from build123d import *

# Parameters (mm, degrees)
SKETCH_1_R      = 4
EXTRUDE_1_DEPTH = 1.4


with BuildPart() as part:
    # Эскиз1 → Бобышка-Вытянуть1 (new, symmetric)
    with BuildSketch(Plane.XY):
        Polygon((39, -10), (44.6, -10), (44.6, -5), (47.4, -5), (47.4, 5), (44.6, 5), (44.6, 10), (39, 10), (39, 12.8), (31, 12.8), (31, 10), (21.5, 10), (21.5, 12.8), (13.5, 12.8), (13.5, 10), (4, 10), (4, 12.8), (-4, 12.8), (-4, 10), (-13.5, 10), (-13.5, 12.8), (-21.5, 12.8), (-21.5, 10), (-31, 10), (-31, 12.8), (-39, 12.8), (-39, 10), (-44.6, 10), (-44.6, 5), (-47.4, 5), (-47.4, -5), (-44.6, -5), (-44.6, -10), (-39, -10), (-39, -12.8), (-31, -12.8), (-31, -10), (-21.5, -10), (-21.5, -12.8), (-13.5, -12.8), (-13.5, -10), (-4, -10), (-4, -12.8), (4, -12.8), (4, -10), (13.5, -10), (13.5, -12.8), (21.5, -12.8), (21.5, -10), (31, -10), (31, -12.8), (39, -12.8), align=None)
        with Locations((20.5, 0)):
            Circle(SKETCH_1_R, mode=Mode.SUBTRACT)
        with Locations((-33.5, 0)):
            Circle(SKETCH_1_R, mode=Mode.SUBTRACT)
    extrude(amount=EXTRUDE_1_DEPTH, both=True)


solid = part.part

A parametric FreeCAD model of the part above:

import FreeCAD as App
import Part
import Sketcher
from FreeCAD import Vector
Q = App.Units.Quantity

doc = App.newDocument("Part")
params = doc.addObject("Spreadsheet::Sheet", "Params")
for row, (alias, value) in enumerate([
    ("sketch1_diameter", "8 mm"),
    ("sketch1_width", "8 mm"),
    ("sketch1_height", "5 mm"),
    ("sketch1_height2", "10 mm"),
    ("sketch1_width2", "5.6 mm"),
    ("pad1_length", "2.8 mm"),
], start=1):
    params.set(f"A{row}", alias)
    params.set(f"B{row}", "=" + value)
    params.setAlias(f"B{row}", alias)

body = doc.addObject("PartDesign::Body", "Body")

sketch1 = body.newObject("Sketcher::SketchObject", "Sketch")
sketch1.AttachmentSupport = (doc.getObject("XY_Plane"), [""])
sketch1.MapMode = "FlatFace"
sketch1.addGeometry(Part.LineSegment(Vector(39, -10, 0), Vector(44.6, -10, 0)), False)
sketch1.addGeometry(Part.LineSegment(Vector(44.6, -10, 0), Vector(44.6, -5, 0)), False)
sketch1.addGeometry(Part.LineSegment(Vector(44.6, -5, 0), Vector(47.4, -5, 0)), False)
sketch1.addGeometry(Part.LineSegment(Vector(47.4, -5, 0), Vector(47.4, 5, 0)), False)
sketch1.addGeometry(Part.LineSegment(Vector(47.4, 5, 0), Vector(44.6, 5, 0)), False)
sketch1.addGeometry(Part.LineSegment(Vector(44.6, 5, 0), Vector(44.6, 10, 0)), False)
sketch1.addGeometry(Part.LineSegment(Vector(44.6, 10, 0), Vector(39, 10, 0)), False)
sketch1.addGeometry(Part.LineSegment(Vector(39, 10, 0), Vector(39, 12.8, 0)), False)
sketch1.addGeometry(Part.LineSegment(Vector(39, 12.8, 0), Vector(31, 12.8, 0)), False)
sketch1.addGeometry(Part.LineSegment(Vector(31, 12.8, 0), Vector(31, 10, 0)), False)
sketch1.addGeometry(Part.LineSegment(Vector(31, 10, 0), Vector(21.5, 10, 0)), False)
sketch1.addGeometry(Part.LineSegment(Vector(21.5, 10, 0), Vector(21.5, 12.8, 0)), False)
sketch1.addGeometry(Part.LineSegment(Vector(21.5, 12.8, 0), Vector(13.5, 12.8, 0)), False)
sketch1.addGeometry(Part.LineSegment(Vector(13.5, 12.8, 0), Vector(13.5, 10, 0)), False)
sketch1.addGeometry(Part.LineSegment(Vector(13.5, 10, 0), Vector(4, 10, 0)), False)
sketch1.addGeometry(Part.LineSegment(Vector(4, 10, 0), Vector(4, 12.8, 0)), False)
sketch1.addGeometry(Part.LineSegment(Vector(4, 12.8, 0), Vector(-4, 12.8, 0)), False)
sketch1.addGeometry(Part.LineSegment(Vector(-4, 12.8, 0), Vector(-4, 10, 0)), False)
sketch1.addGeometry(Part.LineSegment(Vector(-4, 10, 0), Vector(-13.5, 10, 0)), False)
sketch1.addGeometry(Part.LineSegment(Vector(-13.5, 10, 0), Vector(-13.5, 12.8, 0)), False)
sketch1.addGeometry(Part.LineSegment(Vector(-13.5, 12.8, 0), Vector(-21.5, 12.8, 0)), False)
sketch1.addGeometry(Part.LineSegment(Vector(-21.5, 12.8, 0), Vector(-21.5, 10, 0)), False)
sketch1.addGeometry(Part.LineSegment(Vector(-21.5, 10, 0), Vector(-31, 10, 0)), False)
sketch1.addGeometry(Part.LineSegment(Vector(-31, 10, 0), Vector(-31, 12.8, 0)), False)
sketch1.addGeometry(Part.LineSegment(Vector(-31, 12.8, 0), Vector(-39, 12.8, 0)), False)
sketch1.addGeometry(Part.LineSegment(Vector(-39, 12.8, 0), Vector(-39, 10, 0)), False)
sketch1.addGeometry(Part.LineSegment(Vector(-39, 10, 0), Vector(-44.6, 10, 0)), False)
sketch1.addGeometry(Part.LineSegment(Vector(-44.6, 10, 0), Vector(-44.6, 5, 0)), False)
sketch1.addGeometry(Part.LineSegment(Vector(-44.6, 5, 0), Vector(-47.4, 5, 0)), False)
sketch1.addGeometry(Part.LineSegment(Vector(-47.4, 5, 0), Vector(-47.4, -5, 0)), False)
sketch1.addGeometry(Part.LineSegment(Vector(-47.4, -5, 0), Vector(-44.6, -5, 0)), False)
sketch1.addGeometry(Part.LineSegment(Vector(-44.6, -5, 0), Vector(-44.6, -10, 0)), False)
sketch1.addGeometry(Part.LineSegment(Vector(-44.6, -10, 0), Vector(-39, -10, 0)), False)
sketch1.addGeometry(Part.LineSegment(Vector(-39, -10, 0), Vector(-39, -12.8, 0)), False)
sketch1.addGeometry(Part.LineSegment(Vector(-39, -12.8, 0), Vector(-31, -12.8, 0)), False)
sketch1.addGeometry(Part.LineSegment(Vector(-31, -12.8, 0), Vector(-31, -10, 0)), False)
sketch1.addGeometry(Part.LineSegment(Vector(-31, -10, 0), Vector(-21.5, -10, 0)), False)
sketch1.addGeometry(Part.LineSegment(Vector(-21.5, -10, 0), Vector(-21.5, -12.8, 0)), False)
sketch1.addGeometry(Part.LineSegment(Vector(-21.5, -12.8, 0), Vector(-13.5, -12.8, 0)), False)
sketch1.addGeometry(Part.LineSegment(Vector(-13.5, -12.8, 0), Vector(-13.5, -10, 0)), False)
sketch1.addGeometry(Part.LineSegment(Vector(-13.5, -10, 0), Vector(-4, -10, 0)), False)
sketch1.addGeometry(Part.LineSegment(Vector(-4, -10, 0), Vector(-4, -12.8, 0)), False)
sketch1.addGeometry(Part.LineSegment(Vector(-4, -12.8, 0), Vector(4, -12.8, 0)), False)
sketch1.addGeometry(Part.LineSegment(Vector(4, -12.8, 0), Vector(4, -10, 0)), False)
sketch1.addGeometry(Part.LineSegment(Vector(4, -10, 0), Vector(13.5, -10, 0)), False)
sketch1.addGeometry(Part.LineSegment(Vector(13.5, -10, 0), Vector(13.5, -12.8, 0)), False)
sketch1.addGeometry(Part.LineSegment(Vector(13.5, -12.8, 0), Vector(21.5, -12.8, 0)), False)
sketch1.addGeometry(Part.LineSegment(Vector(21.5, -12.8, 0), Vector(21.5, -10, 0)), False)
sketch1.addGeometry(Part.LineSegment(Vector(21.5, -10, 0), Vector(31, -10, 0)), False)
sketch1.addGeometry(Part.LineSegment(Vector(31, -10, 0), Vector(31, -12.8, 0)), False)
sketch1.addGeometry(Part.LineSegment(Vector(31, -12.8, 0), Vector(39, -12.8, 0)), False)
sketch1.addGeometry(Part.LineSegment(Vector(39, -12.8, 0), Vector(39, -10, 0)), False)
sketch1.addGeometry(Part.Circle(Vector(-33.5, 0, 0), Vector(0, 0, 1), 4), False)
sketch1.addGeometry(Part.Circle(Vector(20.5, 0, 0), Vector(0, 0, 1), 4), False)
sketch1.addConstraint(Sketcher.Constraint("Coincident", 0, 2, 1, 1))
sketch1.addConstraint(Sketcher.Constraint("Coincident", 1, 2, 2, 1))
sketch1.addConstraint(Sketcher.Constraint("Coincident", 2, 2, 3, 1))
sketch1.addConstraint(Sketcher.Constraint("Coincident", 3, 2, 4, 1))
sketch1.addConstraint(Sketcher.Constraint("Coincident", 4, 2, 5, 1))
sketch1.addConstraint(Sketcher.Constraint("Coincident", 5, 2, 6, 1))
sketch1.addConstraint(Sketcher.Constraint("Coincident", 6, 2, 7, 1))
sketch1.addConstraint(Sketcher.Constraint("Coincident", 7, 2, 8, 1))
sketch1.addConstraint(Sketcher.Constraint("Coincident", 8, 2, 9, 1))
sketch1.addConstraint(Sketcher.Constraint("Coincident", 9, 2, 10, 1))
sketch1.addConstraint(Sketcher.Constraint("Coincident", 10, 2, 11, 1))
sketch1.addConstraint(Sketcher.Constraint("Coincident", 11, 2, 12, 1))
sketch1.addConstraint(Sketcher.Constraint("Coincident", 12, 2, 13, 1))
sketch1.addConstraint(Sketcher.Constraint("Coincident", 13, 2, 14, 1))
sketch1.addConstraint(Sketcher.Constraint("Coincident", 14, 2, 15, 1))
sketch1.addConstraint(Sketcher.Constraint("Coincident", 15, 2, 16, 1))
sketch1.addConstraint(Sketcher.Constraint("Coincident", 16, 2, 17, 1))
sketch1.addConstraint(Sketcher.Constraint("Coincident", 17, 2, 18, 1))
sketch1.addConstraint(Sketcher.Constraint("Coincident", 18, 2, 19, 1))
sketch1.addConstraint(Sketcher.Constraint("Coincident", 19, 2, 20, 1))
sketch1.addConstraint(Sketcher.Constraint("Coincident", 20, 2, 21, 1))
sketch1.addConstraint(Sketcher.Constraint("Coincident", 21, 2, 22, 1))
sketch1.addConstraint(Sketcher.Constraint("Coincident", 22, 2, 23, 1))
sketch1.addConstraint(Sketcher.Constraint("Coincident", 23, 2, 24, 1))
sketch1.addConstraint(Sketcher.Constraint("Coincident", 24, 2, 25, 1))
sketch1.addConstraint(Sketcher.Constraint("Coincident", 25, 2, 26, 1))
sketch1.addConstraint(Sketcher.Constraint("Coincident", 26, 2, 27, 1))
sketch1.addConstraint(Sketcher.Constraint("Coincident", 27, 2, 28, 1))
sketch1.addConstraint(Sketcher.Constraint("Coincident", 28, 2, 29, 1))
sketch1.addConstraint(Sketcher.Constraint("Coincident", 29, 2, 30, 1))
sketch1.addConstraint(Sketcher.Constraint("Coincident", 30, 2, 31, 1))
sketch1.addConstraint(Sketcher.Constraint("Coincident", 31, 2, 32, 1))
sketch1.addConstraint(Sketcher.Constraint("Coincident", 32, 2, 33, 1))
sketch1.addConstraint(Sketcher.Constraint("Coincident", 33, 2, 34, 1))
sketch1.addConstraint(Sketcher.Constraint("Coincident", 34, 2, 35, 1))
sketch1.addConstraint(Sketcher.Constraint("Coincident", 35, 2, 36, 1))
sketch1.addConstraint(Sketcher.Constraint("Coincident", 36, 2, 37, 1))
sketch1.addConstraint(Sketcher.Constraint("Coincident", 37, 2, 38, 1))
sketch1.addConstraint(Sketcher.Constraint("Coincident", 38, 2, 39, 1))
sketch1.addConstraint(Sketcher.Constraint("Coincident", 39, 2, 40, 1))
sketch1.addConstraint(Sketcher.Constraint("Coincident", 40, 2, 41, 1))
sketch1.addConstraint(Sketcher.Constraint("Coincident", 41, 2, 42, 1))
sketch1.addConstraint(Sketcher.Constraint("Coincident", 42, 2, 43, 1))
sketch1.addConstraint(Sketcher.Constraint("Coincident", 43, 2, 44, 1))
sketch1.addConstraint(Sketcher.Constraint("Coincident", 44, 2, 45, 1))
sketch1.addConstraint(Sketcher.Constraint("Coincident", 45, 2, 46, 1))
sketch1.addConstraint(Sketcher.Constraint("Coincident", 46, 2, 47, 1))
sketch1.addConstraint(Sketcher.Constraint("Coincident", 47, 2, 48, 1))
sketch1.addConstraint(Sketcher.Constraint("Coincident", 48, 2, 49, 1))
sketch1.addConstraint(Sketcher.Constraint("Coincident", 49, 2, 50, 1))
sketch1.addConstraint(Sketcher.Constraint("Coincident", 50, 2, 51, 1))
sketch1.addConstraint(Sketcher.Constraint("Coincident", 51, 2, 0, 1))
sketch1.addConstraint(Sketcher.Constraint("Horizontal", 0))
sketch1.addConstraint(Sketcher.Constraint("Vertical", 1))
sketch1.addConstraint(Sketcher.Constraint("Horizontal", 2))
sketch1.addConstraint(Sketcher.Constraint("Vertical", 3))
sketch1.addConstraint(Sketcher.Constraint("Horizontal", 4))
sketch1.addConstraint(Sketcher.Constraint("Vertical", 5))
sketch1.addConstraint(Sketcher.Constraint("Horizontal", 6))
sketch1.addConstraint(Sketcher.Constraint("Vertical", 7))
sketch1.addConstraint(Sketcher.Constraint("Horizontal", 8))
sketch1.addConstraint(Sketcher.Constraint("Vertical", 9))
sketch1.addConstraint(Sketcher.Constraint("Horizontal", 10))
sketch1.addConstraint(Sketcher.Constraint("Vertical", 11))
sketch1.addConstraint(Sketcher.Constraint("Horizontal", 12))
sketch1.addConstraint(Sketcher.Constraint("Vertical", 13))
sketch1.addConstraint(Sketcher.Constraint("Horizontal", 14))
sketch1.addConstraint(Sketcher.Constraint("Vertical", 15))
sketch1.addConstraint(Sketcher.Constraint("Horizontal", 16))
sketch1.addConstraint(Sketcher.Constraint("Vertical", 17))
sketch1.addConstraint(Sketcher.Constraint("Horizontal", 18))
sketch1.addConstraint(Sketcher.Constraint("Vertical", 19))
sketch1.addConstraint(Sketcher.Constraint("Horizontal", 20))
sketch1.addConstraint(Sketcher.Constraint("Vertical", 21))
sketch1.addConstraint(Sketcher.Constraint("Horizontal", 22))
sketch1.addConstraint(Sketcher.Constraint("Vertical", 23))
sketch1.addConstraint(Sketcher.Constraint("Horizontal", 24))
sketch1.addConstraint(Sketcher.Constraint("Vertical", 25))
sketch1.addConstraint(Sketcher.Constraint("Horizontal", 26))
sketch1.addConstraint(Sketcher.Constraint("Vertical", 27))
sketch1.addConstraint(Sketcher.Constraint("Horizontal", 28))
sketch1.addConstraint(Sketcher.Constraint("Vertical", 29))
sketch1.addConstraint(Sketcher.Constraint("Horizontal", 30))
sketch1.addConstraint(Sketcher.Constraint("Vertical", 31))
sketch1.addConstraint(Sketcher.Constraint("Horizontal", 32))
sketch1.addConstraint(Sketcher.Constraint("Vertical", 33))
sketch1.addConstraint(Sketcher.Constraint("Horizontal", 34))
sketch1.addConstraint(Sketcher.Constraint("Vertical", 35))
sketch1.addConstraint(Sketcher.Constraint("Horizontal", 36))
sketch1.addConstraint(Sketcher.Constraint("Vertical", 37))
sketch1.addConstraint(Sketcher.Constraint("Horizontal", 38))
sketch1.addConstraint(Sketcher.Constraint("Vertical", 39))
sketch1.addConstraint(Sketcher.Constraint("Horizontal", 40))
sketch1.addConstraint(Sketcher.Constraint("Vertical", 41))
sketch1.addConstraint(Sketcher.Constraint("Horizontal", 42))
sketch1.addConstraint(Sketcher.Constraint("Vertical", 43))
sketch1.addConstraint(Sketcher.Constraint("Horizontal", 44))
sketch1.addConstraint(Sketcher.Constraint("Vertical", 45))
sketch1.addConstraint(Sketcher.Constraint("Horizontal", 46))
sketch1.addConstraint(Sketcher.Constraint("Vertical", 47))
sketch1.addConstraint(Sketcher.Constraint("Horizontal", 48))
sketch1.addConstraint(Sketcher.Constraint("Vertical", 49))
sketch1.addConstraint(Sketcher.Constraint("Horizontal", 50))
sketch1.addConstraint(Sketcher.Constraint("Vertical", 51))
sketch1.addConstraint(Sketcher.Constraint("Equal", 52, 53))
sketch1.addConstraint(Sketcher.Constraint("Symmetric", 0, 2, 26, 2, -1, 1))
sketch1.addConstraint(Sketcher.Constraint("Symmetric", 2, 2, 28, 2, -1, 1))
sketch1.addConstraint(Sketcher.Constraint("Symmetric", 4, 2, 30, 2, -1, 1))
sketch1.addConstraint(Sketcher.Constraint("Symmetric", 6, 2, 32, 2, -1, 1))
sketch1.addConstraint(Sketcher.Constraint("Symmetric", 8, 2, 34, 2, -1, 1))
sketch1.addConstraint(Sketcher.Constraint("Symmetric", 10, 2, 36, 2, -1, 1))
sketch1.addConstraint(Sketcher.Constraint("Symmetric", 12, 2, 38, 2, -1, 1))
sketch1.addConstraint(Sketcher.Constraint("Symmetric", 14, 2, 40, 2, -1, 1))
sketch1.addConstraint(Sketcher.Constraint("Symmetric", 16, 2, 42, 2, -1, 1))
sketch1.addConstraint(Sketcher.Constraint("Symmetric", 18, 2, 44, 2, -1, 1))
sketch1.addConstraint(Sketcher.Constraint("Symmetric", 20, 2, 46, 2, -1, 1))
sketch1.addConstraint(Sketcher.Constraint("Symmetric", 22, 2, 48, 2, -1, 1))
sketch1.addConstraint(Sketcher.Constraint("Symmetric", 24, 2, 50, 2, -1, 1))
sketch1.addConstraint(Sketcher.Constraint("Symmetric", 14, 2, 17, 2, -2))
sketch1.addConstraint(Sketcher.Constraint("Symmetric", 12, 2, 19, 2, -2))
sketch1.addConstraint(Sketcher.Constraint("Symmetric", 10, 2, 21, 2, -2))
sketch1.addConstraint(Sketcher.Constraint("Symmetric", 8, 2, 23, 2, -2))
sketch1.addConstraint(Sketcher.Constraint("Symmetric", 6, 2, 25, 2, -2))
sketch1.addConstraint(Sketcher.Constraint("Symmetric", 4, 2, 27, 2, -2))
sketch1.addConstraint(Sketcher.Constraint("PointOnObject", 52, 3, -1))
sketch1.addConstraint(Sketcher.Constraint("PointOnObject", 53, 3, -1))
sketch1.addConstraint(Sketcher.Constraint("Horizontal", 6, 2, 9, 2))
sketch1.addConstraint(Sketcher.Constraint("Horizontal", 8, 2, 11, 2))
sketch1.addConstraint(Sketcher.Constraint("Horizontal", 10, 2, 13, 2))
sketch1.addConstraint(Sketcher.Constraint("Horizontal", 12, 2, 15, 2))
sketch1.addConstraint(Sketcher.Constraint("Equal", 8, 12))
sketch1.addConstraint(Sketcher.Constraint("Equal", 10, 14))
sketch1.addConstraint(Sketcher.Constraint("Equal", 12, 16))
sketch1.addConstraint(Sketcher.Constraint("Equal", 30, 7))
sketch1.addConstraint(Sketcher.Constraint("Diameter", 52, Q("8 mm")))
sketch1.addConstraint(Sketcher.Constraint("DistanceX", 8, 2, 8, 1, Q("8 mm")))
sketch1.addConstraint(Sketcher.Constraint("DistanceY", 1, 1, 1, 2, Q("5 mm")))
sketch1.addConstraint(Sketcher.Constraint("DistanceY", 3, 1, 3, 2, Q("10 mm")))
sketch1.addConstraint(Sketcher.Constraint("DistanceX", 0, 1, 0, 2, Q("5.6 mm")))
sketch1.addConstraint(Sketcher.Constraint("DistanceX", 2, 1, 2, 2, Q("2.8 mm")))
sketch1.addConstraint(Sketcher.Constraint("DistanceX", 10, 2, 10, 1, Q("9.5 mm")))
sketch1.addConstraint(Sketcher.Constraint("DistanceX", 52, 3, 53, 3, Q("54 mm")))
sketch1.addConstraint(Sketcher.Constraint("DistanceX", 53, 3, 10, 2, Q("1 mm")))
sketch1.setExpression("Constraints[134]", "Params.sketch1_diameter")
sketch1.setExpression("Constraints[135]", "Params.sketch1_width")
sketch1.setExpression("Constraints[136]", "Params.sketch1_height")
sketch1.setExpression("Constraints[137]", "Params.sketch1_height2")
sketch1.setExpression("Constraints[138]", "Params.sketch1_width2")
pad1 = body.newObject("PartDesign::Pad", "Pad")
pad1.Profile = sketch1
pad1.setExpression("Length", "Params.pad1_length")
pad1.Midplane = True

doc.recompute()
